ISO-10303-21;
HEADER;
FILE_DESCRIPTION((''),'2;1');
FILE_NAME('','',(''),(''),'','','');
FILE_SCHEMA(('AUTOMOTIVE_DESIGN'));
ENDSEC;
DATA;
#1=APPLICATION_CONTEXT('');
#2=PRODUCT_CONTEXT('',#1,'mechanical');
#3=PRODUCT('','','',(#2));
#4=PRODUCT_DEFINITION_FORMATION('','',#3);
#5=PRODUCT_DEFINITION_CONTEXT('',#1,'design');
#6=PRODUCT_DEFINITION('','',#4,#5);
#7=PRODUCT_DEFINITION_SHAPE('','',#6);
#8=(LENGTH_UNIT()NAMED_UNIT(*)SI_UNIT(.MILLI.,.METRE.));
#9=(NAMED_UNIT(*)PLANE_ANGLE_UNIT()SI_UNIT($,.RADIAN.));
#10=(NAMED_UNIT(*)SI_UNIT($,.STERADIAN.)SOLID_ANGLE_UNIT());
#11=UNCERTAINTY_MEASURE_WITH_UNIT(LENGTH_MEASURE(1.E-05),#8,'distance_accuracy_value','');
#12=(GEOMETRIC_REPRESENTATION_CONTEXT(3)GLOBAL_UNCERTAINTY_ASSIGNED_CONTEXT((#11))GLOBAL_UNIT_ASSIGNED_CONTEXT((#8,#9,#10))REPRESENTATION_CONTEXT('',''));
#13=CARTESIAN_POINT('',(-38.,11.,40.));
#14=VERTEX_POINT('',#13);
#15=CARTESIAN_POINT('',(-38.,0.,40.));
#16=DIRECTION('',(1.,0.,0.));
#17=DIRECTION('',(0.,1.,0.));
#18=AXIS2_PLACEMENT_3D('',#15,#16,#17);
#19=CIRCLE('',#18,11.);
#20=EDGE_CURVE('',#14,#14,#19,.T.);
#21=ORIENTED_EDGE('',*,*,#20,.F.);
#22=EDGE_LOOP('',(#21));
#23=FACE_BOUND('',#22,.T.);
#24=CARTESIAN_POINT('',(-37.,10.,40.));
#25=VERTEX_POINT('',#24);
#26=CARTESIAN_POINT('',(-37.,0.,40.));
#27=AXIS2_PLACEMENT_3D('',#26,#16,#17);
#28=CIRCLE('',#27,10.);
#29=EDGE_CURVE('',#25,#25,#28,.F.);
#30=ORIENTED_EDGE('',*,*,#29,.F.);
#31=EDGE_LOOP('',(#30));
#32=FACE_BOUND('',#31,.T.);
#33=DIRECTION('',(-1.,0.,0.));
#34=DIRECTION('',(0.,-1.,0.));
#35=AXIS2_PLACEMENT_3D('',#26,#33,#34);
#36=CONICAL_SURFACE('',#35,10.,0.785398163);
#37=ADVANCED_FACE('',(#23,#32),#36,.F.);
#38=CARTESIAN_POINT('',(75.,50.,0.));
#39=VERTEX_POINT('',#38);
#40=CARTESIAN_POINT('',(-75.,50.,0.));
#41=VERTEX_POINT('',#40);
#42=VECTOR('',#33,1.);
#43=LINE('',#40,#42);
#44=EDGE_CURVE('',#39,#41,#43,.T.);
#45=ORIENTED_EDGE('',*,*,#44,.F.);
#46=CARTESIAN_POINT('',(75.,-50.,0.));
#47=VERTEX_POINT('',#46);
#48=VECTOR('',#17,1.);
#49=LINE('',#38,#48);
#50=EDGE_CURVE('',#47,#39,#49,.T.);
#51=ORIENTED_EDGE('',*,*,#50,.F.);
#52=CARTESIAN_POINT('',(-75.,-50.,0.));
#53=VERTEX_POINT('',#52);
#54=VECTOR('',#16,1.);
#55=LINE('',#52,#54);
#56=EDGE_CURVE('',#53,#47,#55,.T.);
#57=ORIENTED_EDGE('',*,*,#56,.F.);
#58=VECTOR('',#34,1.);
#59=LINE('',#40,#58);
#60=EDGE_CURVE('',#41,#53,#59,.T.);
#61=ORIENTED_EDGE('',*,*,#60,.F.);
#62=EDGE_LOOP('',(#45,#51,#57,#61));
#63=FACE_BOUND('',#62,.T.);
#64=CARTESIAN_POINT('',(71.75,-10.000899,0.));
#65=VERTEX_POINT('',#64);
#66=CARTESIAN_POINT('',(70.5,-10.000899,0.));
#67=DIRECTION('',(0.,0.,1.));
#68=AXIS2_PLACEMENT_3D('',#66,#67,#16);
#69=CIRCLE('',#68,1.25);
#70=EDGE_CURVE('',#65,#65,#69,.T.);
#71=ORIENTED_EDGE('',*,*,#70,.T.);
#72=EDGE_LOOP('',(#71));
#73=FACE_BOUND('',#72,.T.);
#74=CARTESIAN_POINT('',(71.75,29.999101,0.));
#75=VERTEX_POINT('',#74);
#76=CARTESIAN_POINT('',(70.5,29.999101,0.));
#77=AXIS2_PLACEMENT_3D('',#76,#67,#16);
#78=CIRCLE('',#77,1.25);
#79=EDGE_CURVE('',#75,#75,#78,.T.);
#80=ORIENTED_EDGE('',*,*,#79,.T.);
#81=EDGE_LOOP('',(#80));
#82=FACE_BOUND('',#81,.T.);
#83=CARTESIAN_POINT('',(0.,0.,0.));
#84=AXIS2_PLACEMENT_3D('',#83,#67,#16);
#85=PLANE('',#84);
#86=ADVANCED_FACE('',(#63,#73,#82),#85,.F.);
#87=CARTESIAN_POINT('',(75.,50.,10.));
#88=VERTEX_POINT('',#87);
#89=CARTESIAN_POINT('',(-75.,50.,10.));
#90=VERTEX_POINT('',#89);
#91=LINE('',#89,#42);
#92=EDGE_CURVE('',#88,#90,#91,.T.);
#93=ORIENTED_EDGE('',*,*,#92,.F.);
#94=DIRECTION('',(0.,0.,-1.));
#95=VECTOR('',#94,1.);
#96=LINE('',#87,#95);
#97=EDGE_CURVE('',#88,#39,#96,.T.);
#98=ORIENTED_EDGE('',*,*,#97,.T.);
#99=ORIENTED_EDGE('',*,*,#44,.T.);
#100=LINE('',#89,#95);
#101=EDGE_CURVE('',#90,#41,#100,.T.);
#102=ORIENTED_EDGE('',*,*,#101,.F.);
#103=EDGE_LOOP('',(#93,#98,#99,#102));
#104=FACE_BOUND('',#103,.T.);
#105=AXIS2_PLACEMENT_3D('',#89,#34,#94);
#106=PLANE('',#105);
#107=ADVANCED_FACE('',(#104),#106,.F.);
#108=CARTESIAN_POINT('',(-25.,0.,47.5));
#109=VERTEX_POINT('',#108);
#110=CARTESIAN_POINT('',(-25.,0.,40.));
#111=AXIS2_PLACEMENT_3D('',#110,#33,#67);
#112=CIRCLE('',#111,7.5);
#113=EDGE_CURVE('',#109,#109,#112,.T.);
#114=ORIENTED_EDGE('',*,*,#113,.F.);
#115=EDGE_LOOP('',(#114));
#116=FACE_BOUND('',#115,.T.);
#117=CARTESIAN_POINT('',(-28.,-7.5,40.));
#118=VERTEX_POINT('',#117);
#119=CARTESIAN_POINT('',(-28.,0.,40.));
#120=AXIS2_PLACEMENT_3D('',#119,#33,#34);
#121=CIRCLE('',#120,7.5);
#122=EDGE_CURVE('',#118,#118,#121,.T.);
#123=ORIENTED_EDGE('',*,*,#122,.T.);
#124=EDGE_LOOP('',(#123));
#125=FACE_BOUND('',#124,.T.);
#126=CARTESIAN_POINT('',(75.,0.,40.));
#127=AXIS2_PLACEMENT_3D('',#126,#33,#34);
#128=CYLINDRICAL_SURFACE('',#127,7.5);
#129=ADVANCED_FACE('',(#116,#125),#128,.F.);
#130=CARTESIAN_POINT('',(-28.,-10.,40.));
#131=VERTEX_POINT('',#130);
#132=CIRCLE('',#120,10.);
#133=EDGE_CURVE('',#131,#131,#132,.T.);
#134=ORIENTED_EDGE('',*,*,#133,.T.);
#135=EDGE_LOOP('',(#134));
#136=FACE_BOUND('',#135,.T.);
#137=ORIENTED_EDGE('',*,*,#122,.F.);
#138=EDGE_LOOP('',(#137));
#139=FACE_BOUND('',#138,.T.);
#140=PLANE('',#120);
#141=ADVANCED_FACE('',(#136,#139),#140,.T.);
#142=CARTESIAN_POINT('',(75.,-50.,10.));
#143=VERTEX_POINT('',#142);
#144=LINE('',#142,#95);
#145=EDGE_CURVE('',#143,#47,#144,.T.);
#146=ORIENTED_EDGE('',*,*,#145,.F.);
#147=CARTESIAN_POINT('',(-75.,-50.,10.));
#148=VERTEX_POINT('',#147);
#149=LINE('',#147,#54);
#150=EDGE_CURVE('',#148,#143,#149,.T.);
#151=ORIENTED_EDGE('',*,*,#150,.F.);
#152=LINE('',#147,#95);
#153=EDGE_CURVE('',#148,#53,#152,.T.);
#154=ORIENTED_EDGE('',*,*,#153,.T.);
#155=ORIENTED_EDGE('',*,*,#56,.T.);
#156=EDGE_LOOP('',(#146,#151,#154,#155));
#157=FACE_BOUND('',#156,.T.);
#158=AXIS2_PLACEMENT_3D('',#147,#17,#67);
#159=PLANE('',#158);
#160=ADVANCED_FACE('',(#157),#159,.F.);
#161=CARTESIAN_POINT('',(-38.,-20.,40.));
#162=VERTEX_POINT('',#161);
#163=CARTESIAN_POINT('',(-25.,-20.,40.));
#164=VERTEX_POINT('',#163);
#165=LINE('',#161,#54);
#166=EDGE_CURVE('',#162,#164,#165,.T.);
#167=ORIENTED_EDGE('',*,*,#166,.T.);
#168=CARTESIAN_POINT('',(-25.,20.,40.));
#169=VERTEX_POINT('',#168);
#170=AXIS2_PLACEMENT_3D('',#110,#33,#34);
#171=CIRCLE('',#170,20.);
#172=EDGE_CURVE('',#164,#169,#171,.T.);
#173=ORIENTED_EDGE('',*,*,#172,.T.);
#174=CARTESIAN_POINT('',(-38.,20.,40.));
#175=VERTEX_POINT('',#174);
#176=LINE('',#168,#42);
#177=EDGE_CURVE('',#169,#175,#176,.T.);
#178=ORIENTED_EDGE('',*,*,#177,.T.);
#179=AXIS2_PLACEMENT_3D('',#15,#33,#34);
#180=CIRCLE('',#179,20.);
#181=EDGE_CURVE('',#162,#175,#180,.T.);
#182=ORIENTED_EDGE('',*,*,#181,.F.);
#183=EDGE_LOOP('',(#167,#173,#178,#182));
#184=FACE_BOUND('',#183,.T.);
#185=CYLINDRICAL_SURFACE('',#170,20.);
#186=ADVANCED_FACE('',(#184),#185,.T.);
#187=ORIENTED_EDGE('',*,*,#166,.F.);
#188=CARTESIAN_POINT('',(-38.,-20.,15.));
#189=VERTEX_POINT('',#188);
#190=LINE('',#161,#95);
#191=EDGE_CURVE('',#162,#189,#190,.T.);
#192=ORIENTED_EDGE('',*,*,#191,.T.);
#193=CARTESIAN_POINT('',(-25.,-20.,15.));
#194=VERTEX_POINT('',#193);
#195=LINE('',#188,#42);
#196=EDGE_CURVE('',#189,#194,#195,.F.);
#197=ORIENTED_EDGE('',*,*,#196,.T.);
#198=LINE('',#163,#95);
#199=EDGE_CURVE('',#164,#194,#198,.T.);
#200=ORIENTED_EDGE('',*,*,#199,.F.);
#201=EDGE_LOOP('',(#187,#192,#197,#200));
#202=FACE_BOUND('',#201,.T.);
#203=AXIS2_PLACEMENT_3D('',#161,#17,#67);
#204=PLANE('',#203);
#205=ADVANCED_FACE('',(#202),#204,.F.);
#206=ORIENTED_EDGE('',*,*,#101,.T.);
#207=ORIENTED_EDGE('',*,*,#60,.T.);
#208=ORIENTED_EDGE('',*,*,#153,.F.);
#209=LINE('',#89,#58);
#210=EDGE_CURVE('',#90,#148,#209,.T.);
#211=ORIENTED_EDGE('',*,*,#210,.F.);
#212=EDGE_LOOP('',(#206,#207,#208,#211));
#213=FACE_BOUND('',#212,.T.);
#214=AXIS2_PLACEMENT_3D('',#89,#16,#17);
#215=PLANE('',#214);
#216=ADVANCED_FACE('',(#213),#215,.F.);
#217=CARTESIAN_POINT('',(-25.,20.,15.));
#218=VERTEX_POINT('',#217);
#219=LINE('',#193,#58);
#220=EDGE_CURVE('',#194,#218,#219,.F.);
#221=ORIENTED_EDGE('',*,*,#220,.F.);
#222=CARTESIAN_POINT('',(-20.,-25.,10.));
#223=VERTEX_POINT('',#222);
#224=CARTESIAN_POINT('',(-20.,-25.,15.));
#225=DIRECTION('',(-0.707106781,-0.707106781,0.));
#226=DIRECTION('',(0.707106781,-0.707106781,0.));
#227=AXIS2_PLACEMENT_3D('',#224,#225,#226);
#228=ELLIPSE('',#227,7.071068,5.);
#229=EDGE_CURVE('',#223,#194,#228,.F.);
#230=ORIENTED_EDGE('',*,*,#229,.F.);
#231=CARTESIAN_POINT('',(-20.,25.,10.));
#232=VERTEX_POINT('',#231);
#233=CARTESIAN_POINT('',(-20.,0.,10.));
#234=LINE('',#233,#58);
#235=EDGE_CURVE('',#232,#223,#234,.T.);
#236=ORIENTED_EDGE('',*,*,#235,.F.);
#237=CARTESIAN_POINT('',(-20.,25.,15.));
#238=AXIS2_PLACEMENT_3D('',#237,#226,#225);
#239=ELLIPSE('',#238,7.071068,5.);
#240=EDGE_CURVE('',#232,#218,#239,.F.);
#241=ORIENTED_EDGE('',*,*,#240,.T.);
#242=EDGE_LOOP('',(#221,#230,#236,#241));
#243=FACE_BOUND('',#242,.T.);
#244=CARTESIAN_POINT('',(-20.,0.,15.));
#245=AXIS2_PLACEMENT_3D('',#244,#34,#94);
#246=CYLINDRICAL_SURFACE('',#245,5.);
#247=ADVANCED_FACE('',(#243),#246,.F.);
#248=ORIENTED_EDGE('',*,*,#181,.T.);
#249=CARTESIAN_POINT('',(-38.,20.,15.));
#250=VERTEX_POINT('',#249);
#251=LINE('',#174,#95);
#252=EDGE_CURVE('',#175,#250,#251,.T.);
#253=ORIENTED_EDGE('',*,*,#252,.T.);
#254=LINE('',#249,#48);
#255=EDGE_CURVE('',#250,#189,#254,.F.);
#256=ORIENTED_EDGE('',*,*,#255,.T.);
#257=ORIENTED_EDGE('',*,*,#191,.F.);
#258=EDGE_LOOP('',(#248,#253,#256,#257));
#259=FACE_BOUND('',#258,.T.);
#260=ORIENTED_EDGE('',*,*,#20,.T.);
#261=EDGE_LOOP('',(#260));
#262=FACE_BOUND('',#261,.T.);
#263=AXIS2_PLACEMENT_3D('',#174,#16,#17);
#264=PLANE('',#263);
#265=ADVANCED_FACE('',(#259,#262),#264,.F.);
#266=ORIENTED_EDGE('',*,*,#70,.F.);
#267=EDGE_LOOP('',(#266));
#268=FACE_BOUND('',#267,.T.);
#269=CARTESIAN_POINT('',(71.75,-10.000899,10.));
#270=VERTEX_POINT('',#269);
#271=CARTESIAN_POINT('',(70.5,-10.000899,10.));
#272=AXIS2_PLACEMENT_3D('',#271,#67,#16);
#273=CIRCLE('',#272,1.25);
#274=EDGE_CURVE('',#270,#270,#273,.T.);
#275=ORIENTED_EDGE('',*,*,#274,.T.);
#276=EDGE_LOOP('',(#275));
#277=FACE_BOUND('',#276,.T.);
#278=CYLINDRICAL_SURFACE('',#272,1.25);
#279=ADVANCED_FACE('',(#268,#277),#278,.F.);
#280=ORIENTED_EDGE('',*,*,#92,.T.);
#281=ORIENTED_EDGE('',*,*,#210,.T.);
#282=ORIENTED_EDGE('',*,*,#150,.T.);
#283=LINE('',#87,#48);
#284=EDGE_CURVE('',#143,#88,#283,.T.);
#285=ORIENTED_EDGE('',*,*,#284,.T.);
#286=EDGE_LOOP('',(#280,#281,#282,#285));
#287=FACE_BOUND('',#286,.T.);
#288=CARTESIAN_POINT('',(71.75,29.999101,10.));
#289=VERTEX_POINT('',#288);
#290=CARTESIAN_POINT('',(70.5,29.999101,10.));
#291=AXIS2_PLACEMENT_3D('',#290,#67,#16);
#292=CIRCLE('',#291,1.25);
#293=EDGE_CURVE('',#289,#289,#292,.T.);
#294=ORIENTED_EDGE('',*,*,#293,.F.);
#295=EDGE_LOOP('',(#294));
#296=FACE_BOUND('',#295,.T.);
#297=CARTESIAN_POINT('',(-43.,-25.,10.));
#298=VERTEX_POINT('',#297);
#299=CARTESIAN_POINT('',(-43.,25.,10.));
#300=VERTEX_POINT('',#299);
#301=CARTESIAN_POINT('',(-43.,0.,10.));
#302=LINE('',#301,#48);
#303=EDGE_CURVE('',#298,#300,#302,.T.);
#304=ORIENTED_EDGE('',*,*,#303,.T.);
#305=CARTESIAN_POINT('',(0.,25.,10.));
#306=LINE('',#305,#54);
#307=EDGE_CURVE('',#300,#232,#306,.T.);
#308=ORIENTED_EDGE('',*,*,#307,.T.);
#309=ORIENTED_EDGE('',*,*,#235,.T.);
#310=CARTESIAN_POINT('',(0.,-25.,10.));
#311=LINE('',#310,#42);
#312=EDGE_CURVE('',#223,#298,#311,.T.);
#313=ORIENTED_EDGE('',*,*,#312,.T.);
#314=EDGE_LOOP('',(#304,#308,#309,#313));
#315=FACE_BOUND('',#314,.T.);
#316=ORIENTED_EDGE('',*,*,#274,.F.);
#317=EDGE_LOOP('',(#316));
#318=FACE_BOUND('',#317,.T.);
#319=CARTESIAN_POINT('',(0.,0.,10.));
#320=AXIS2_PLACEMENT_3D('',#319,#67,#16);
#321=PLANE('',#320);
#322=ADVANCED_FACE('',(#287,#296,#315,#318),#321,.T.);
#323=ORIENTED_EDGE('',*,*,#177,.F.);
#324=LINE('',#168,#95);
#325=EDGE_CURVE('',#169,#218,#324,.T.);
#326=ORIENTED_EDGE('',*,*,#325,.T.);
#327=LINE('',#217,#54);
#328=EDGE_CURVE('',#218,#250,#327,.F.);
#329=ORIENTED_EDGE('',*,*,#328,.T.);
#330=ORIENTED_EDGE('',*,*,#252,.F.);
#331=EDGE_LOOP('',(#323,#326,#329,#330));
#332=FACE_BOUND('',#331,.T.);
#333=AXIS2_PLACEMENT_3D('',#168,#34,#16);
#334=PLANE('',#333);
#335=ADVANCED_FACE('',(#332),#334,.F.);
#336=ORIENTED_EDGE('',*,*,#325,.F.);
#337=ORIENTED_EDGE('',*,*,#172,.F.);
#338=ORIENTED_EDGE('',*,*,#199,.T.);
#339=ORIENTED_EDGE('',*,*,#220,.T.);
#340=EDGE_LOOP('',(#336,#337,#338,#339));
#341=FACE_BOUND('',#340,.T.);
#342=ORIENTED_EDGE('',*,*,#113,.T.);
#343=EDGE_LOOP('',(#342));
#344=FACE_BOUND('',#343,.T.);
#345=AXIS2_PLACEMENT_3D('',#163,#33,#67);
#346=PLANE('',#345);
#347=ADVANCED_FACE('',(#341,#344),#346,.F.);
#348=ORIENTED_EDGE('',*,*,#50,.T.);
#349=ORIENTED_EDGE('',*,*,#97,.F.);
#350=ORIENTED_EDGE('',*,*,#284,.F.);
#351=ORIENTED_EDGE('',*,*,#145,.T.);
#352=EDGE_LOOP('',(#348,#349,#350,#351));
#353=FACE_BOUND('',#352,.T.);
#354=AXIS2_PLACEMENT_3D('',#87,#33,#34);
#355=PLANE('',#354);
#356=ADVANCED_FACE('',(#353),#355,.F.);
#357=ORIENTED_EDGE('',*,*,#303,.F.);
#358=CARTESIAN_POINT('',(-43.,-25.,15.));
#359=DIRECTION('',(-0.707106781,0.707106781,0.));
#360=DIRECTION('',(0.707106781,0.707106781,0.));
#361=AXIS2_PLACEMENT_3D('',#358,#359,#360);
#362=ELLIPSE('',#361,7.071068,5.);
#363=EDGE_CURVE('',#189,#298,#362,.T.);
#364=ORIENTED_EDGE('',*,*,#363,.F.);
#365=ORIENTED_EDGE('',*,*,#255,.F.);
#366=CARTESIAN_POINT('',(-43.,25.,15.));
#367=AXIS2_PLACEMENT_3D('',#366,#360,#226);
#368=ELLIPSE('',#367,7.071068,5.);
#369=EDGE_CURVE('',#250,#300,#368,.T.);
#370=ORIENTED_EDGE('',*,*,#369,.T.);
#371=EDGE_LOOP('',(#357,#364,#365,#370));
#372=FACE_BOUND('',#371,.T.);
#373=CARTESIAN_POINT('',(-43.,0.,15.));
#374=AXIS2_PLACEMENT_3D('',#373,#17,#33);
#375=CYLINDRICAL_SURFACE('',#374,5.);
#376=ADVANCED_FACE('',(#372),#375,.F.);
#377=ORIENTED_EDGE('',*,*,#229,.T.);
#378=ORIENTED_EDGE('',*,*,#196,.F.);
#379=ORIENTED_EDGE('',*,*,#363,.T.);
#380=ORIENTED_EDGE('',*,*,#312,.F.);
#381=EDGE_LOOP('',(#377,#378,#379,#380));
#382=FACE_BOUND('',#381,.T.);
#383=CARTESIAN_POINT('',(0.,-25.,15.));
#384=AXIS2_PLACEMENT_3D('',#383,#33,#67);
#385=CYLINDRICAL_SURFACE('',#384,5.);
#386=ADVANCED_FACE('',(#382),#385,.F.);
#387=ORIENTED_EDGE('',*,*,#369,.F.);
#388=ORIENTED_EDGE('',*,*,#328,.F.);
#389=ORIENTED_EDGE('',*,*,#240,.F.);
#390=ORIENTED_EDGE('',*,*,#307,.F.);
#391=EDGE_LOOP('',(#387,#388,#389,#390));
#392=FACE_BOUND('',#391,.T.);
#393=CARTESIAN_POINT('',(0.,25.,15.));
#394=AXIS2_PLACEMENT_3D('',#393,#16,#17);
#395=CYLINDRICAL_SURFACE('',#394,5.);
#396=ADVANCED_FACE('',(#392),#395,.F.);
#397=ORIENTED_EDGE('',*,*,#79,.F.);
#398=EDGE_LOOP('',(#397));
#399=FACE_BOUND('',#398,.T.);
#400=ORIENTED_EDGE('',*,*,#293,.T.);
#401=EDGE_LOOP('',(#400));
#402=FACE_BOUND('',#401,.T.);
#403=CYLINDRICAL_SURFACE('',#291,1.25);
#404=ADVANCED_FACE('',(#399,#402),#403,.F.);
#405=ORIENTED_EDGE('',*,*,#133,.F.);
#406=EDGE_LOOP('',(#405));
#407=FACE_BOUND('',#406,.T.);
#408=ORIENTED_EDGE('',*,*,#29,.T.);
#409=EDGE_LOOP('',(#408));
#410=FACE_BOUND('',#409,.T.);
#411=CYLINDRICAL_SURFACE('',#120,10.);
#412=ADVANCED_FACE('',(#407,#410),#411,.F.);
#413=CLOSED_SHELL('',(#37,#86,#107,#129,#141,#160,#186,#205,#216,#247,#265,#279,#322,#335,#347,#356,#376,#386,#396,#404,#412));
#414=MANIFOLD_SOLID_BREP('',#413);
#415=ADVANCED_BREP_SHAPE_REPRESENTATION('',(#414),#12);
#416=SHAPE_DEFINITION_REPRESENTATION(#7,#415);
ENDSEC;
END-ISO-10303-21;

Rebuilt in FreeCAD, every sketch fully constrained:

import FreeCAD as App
import Part
import Sketcher
Q = App.Units.Quantity


def edges_at(feature, points):
    """Names of the edges that pass closest to the given points."""
    edges = feature.Shape.Edges
    near = lambda p: min(range(len(edges)), key=lambda i: edges[i].distToShape(Part.Vertex(*p))[0])
    return sorted({f"Edge{near(p) + 1}" for p in points})


def add_polygon(sketch, points):
    """Adds a closed chain of lines whose ends are joined by coincident constraints."""
    first, n = sketch.GeometryCount, len(points)
    for a, b in zip(points, points[1:] + points[:1]):
        sketch.addGeometry(Part.LineSegment(App.Vector(*a, 0), App.Vector(*b, 0)), False)
    for i in range(n):
        sketch.addConstraint(Sketcher.Constraint("Coincident", first + i, 2, first + (i + 1) % n, 1))

doc = App.newDocument("Part")
body = doc.addObject("PartDesign::Body", "Body")

sketch1 = body.newObject("Sketcher::SketchObject", "Sketch")
sketch1.AttachmentSupport = (doc.getObject("XY_Plane"), [""])
sketch1.MapMode = "FlatFace"
add_polygon(sketch1, [(-75, 50), (-75, -50), (75, -50), (75, 50)])
sketch1.addConstraint(Sketcher.Constraint("Vertical", 0))
sketch1.addConstraint(Sketcher.Constraint("Horizontal", 1))
sketch1.addConstraint(Sketcher.Constraint("Vertical", 2))
sketch1.addConstraint(Sketcher.Constraint("Horizontal", 3))
sketch1.addConstraint(Sketcher.Constraint("Symmetric", 0, 2, 2, 2, -1, 1))
sketch1.addConstraint(Sketcher.Constraint("DistanceX", 1, 1, 1, 2, Q("150 mm")))
sketch1.addConstraint(Sketcher.Constraint("DistanceY", 0, 2, 0, 1, Q("100 mm")))
pad1 = body.newObject("PartDesign::Pad", "Pad")
pad1.Profile = sketch1
pad1.Length = 10

sketch2 = body.newObject("Sketcher::SketchObject", "Sketch001")
sketch2.AttachmentSupport = (doc.getObject("XY_Plane"), [""])
sketch2.MapMode = "FlatFace"
add_polygon(sketch2, [(-38, 20), (-38, -20), (-25, -20), (-25, 20)])
sketch2.addConstraint(Sketcher.Constraint("Vertical", 0))
sketch2.addConstraint(Sketcher.Constraint("Horizontal", 1))
sketch2.addConstraint(Sketcher.Constraint("Vertical", 2))
sketch2.addConstraint(Sketcher.Constraint("Horizontal", 3))
sketch2.addConstraint(Sketcher.Constraint("DistanceX", 1, 1, 1, 2, Q("13 mm")))
sketch2.addConstraint(Sketcher.Constraint("DistanceY", 0, 2, 0, 1, Q("40 mm")))
sketch2.addConstraint(Sketcher.Constraint("DistanceX", 0, 2, -1, 1, Q("38 mm")))
sketch2.addConstraint(Sketcher.Constraint("DistanceY", 0, 2, -1, 1, Q("20 mm")))
pad2 = body.newObject("PartDesign::Pad", "Pad001")
pad2.Profile = sketch2
pad2.Length = 40

sketch3 = body.newObject("Sketcher::SketchObject", "Sketch002")
sketch3.AttachmentSupport = (doc.getObject("YZ_Plane"), [""])
sketch3.MapMode = "FlatFace"
sketch3.AttachmentOffset = App.Placement(App.Vector(0, 0, -38), App.Rotation())
sketch3.addGeometry(Part.Circle(App.Vector(0, 40, 0), App.Vector(0, 0, 1), 20), False)
sketch3.addConstraint(Sketcher.Constraint("PointOnObject", 0, 3, -2))
sketch3.addConstraint(Sketcher.Constraint("Diameter", 0, Q("40 mm")))
sketch3.addConstraint(Sketcher.Constraint("DistanceY", -1, 1, 0, 3, Q("40 mm")))
pad3 = body.newObject("PartDesign::Pad", "Pad002")
pad3.Profile = sketch3
pad3.Length = 13

sketch4 = body.newObject("Sketcher::SketchObject", "Sketch003")
sketch4.AttachmentSupport = (doc.getObject("YZ_Plane"), [""])
sketch4.MapMode = "FlatFace"
sketch4.AttachmentOffset = App.Placement(App.Vector(0, 0, -38), App.Rotation())
sketch4.addGeometry(Part.Circle(App.Vector(0, 40, 0), App.Vector(0, 0, 1), 10), False)
sketch4.addConstraint(Sketcher.Constraint("PointOnObject", 0, 3, -2))
sketch4.addConstraint(Sketcher.Constraint("Diameter", 0, Q("20 mm")))
sketch4.addConstraint(Sketcher.Constraint("DistanceY", -1, 1, 0, 3, Q("40 mm")))
pocket1 = body.newObject("PartDesign::Pocket", "Pocket")
pocket1.Profile = sketch4
pocket1.Length = 10
pocket1.Reversed = True

sketch5 = body.newObject("Sketcher::SketchObject", "Sketch004")
sketch5.AttachmentSupport = (doc.getObject("XY_Plane"), [""])
sketch5.MapMode = "FlatFace"
sketch5.AttachmentOffset = App.Placement(App.Vector(0, 0, 10), App.Rotation())
sketch5.addGeometry(Part.Circle(App.Vector(70.5, -10.000899, 0), App.Vector(0, 0, 1), 1.25), False)
sketch5.addGeometry(Part.Circle(App.Vector(70.5, 29.999101, 0), App.Vector(0, 0, 1), 1.25), False)
sketch5.addConstraint(Sketcher.Constraint("Equal", 0, 1))
sketch5.addConstraint(Sketcher.Constraint("Vertical", 0, 3, 1, 3))
sketch5.addConstraint(Sketcher.Constraint("Diameter", 0, Q("2.5 mm")))
sketch5.addConstraint(Sketcher.Constraint("DistanceY", 0, 3, 1, 3, Q("40 mm")))
sketch5.addConstraint(Sketcher.Constraint("DistanceX", -1, 1, 0, 3, Q("70.5 mm")))
sketch5.addConstraint(Sketcher.Constraint("DistanceY", 0, 3, -1, 1, Q("10.000899 mm")))
doc.recompute()
hole = body.newObject("PartDesign::Hole", "Hole")
hole.Profile = sketch5
hole.ThreadType = "None"
hole.Diameter = 2.5
hole.DepthType = "ThroughAll"
doc.recompute()

fillet = body.newObject("PartDesign::Fillet", "Fillet")
fillet.Base = (hole, edges_at(hole, [
    (-31.5, 20, 10),
    (-38, 0, 10),
    (-31.5, -20, 10),
    (-25, 0, 10),
]))
fillet.Radius = 5

sketch6 = body.newObject("Sketcher::SketchObject", "Sketch005")
sketch6.AttachmentSupport = (doc.getObject("YZ_Plane"), [""])
sketch6.MapMode = "FlatFace"
sketch6.AttachmentOffset = App.Placement(App.Vector(0, 0, -28), App.Rotation())
sketch6.addGeometry(Part.Circle(App.Vector(0, 40, 0), App.Vector(0, 0, 1), 7.5), False)
sketch6.addConstraint(Sketcher.Constraint("PointOnObject", 0, 3, -2))
sketch6.addConstraint(Sketcher.Constraint("Diameter", 0, Q("15 mm")))
sketch6.addConstraint(Sketcher.Constraint("DistanceY", -1, 1, 0, 3, Q("40 mm")))
pocket2 = body.newObject("PartDesign::Pocket", "Pocket001")
pocket2.Profile = sketch6
pocket2.Type = "ThroughAll"
pocket2.Reversed = True
doc.recompute()

chamfer = body.newObject("PartDesign::Chamfer", "Chamfer")
chamfer.Base = (pocket2, edges_at(pocket2, [(-38, 10, 40)]))
chamfer.Size = 1

doc.recompute()
